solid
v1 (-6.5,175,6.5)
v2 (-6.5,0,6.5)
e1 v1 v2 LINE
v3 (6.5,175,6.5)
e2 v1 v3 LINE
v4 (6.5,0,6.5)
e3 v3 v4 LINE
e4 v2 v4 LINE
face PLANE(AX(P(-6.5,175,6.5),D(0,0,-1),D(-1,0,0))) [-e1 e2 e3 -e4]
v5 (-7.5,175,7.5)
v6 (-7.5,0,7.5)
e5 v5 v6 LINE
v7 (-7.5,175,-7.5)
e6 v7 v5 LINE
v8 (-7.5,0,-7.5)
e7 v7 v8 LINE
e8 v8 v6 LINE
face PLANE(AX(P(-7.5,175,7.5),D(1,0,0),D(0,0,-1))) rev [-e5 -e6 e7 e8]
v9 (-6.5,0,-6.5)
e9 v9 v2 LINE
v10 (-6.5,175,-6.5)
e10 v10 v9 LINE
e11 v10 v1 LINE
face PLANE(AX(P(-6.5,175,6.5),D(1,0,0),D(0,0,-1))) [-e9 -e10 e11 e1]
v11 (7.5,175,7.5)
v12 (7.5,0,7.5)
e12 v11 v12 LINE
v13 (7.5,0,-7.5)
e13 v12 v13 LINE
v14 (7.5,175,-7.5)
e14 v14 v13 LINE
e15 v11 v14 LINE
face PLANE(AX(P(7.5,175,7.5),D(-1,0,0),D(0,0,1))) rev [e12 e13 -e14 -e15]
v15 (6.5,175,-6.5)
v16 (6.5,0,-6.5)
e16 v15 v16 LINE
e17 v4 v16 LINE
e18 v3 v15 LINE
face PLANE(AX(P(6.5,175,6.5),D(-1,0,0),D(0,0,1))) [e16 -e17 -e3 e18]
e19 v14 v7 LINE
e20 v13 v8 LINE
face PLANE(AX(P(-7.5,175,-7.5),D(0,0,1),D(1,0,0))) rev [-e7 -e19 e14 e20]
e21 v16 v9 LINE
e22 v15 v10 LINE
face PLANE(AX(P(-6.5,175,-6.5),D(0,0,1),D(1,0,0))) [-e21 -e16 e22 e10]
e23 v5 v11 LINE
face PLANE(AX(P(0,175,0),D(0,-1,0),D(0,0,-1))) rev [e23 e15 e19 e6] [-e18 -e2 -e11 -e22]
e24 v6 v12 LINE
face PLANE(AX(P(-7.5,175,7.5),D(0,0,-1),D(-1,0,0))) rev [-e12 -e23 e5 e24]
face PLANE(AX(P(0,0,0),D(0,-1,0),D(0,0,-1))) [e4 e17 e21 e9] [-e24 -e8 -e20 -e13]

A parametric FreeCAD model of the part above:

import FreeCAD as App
import Part
import Sketcher

V = App.Vector


def add_polygon(sketch, points):
    """Adds a closed chain of lines whose ends are joined by coincident constraints."""
    first, n = sketch.GeometryCount, len(points)
    for a, b in zip(points, points[1:] + points[:1]):
        sketch.addGeometry(Part.LineSegment(App.Vector(*a, 0), App.Vector(*b, 0)), False)
    for i in range(n):
        sketch.addConstraint(Sketcher.Constraint("Coincident", first + i, 2, first + (i + 1) % n, 1))

doc = App.newDocument("Part")
body = doc.addObject("PartDesign::Body", "Body")

sketch1 = body.newObject("Sketcher::SketchObject", "Sketch")
sketch1.AttachmentSupport = (doc.getObject("XZ_Plane"), [""])
sketch1.MapMode = "FlatFace"
add_polygon(sketch1, [(-8, -8), (-8, 8), (8, 8), (8, -8)])
add_polygon(sketch1, [(6, 6), (-6, 6), (-6, -6), (6, -6)])
sketch1.addConstraint([
    Sketcher.Constraint("Vertical", 0),
    Sketcher.Constraint("Horizontal", 1),
    Sketcher.Constraint("Vertical", 2),
    Sketcher.Constraint("Horizontal", 3),
    Sketcher.Constraint("Horizontal", 4),
    Sketcher.Constraint("Vertical", 5),
    Sketcher.Constraint("Horizontal", 6),
    Sketcher.Constraint("Vertical", 7),
    Sketcher.Constraint("Symmetric", 0, 2, 2, 2, -1, 1),
    Sketcher.Constraint("Symmetric", 4, 2, 6, 2, -1, 1),
    Sketcher.Constraint("Equal", 3, 0),
    Sketcher.Constraint("Equal", 6, 5),
    Sketcher.Constraint("DistanceX", 1, 1, 1, 2, 15.0),
    Sketcher.Constraint("DistanceX", 4, 2, 4, 1, 13.0),
])
pad1 = body.newObject("PartDesign::Pad", "Pad")
pad1.Profile = sketch1
pad1.Length = 175
pad1.Reversed = True

doc.recompute()
